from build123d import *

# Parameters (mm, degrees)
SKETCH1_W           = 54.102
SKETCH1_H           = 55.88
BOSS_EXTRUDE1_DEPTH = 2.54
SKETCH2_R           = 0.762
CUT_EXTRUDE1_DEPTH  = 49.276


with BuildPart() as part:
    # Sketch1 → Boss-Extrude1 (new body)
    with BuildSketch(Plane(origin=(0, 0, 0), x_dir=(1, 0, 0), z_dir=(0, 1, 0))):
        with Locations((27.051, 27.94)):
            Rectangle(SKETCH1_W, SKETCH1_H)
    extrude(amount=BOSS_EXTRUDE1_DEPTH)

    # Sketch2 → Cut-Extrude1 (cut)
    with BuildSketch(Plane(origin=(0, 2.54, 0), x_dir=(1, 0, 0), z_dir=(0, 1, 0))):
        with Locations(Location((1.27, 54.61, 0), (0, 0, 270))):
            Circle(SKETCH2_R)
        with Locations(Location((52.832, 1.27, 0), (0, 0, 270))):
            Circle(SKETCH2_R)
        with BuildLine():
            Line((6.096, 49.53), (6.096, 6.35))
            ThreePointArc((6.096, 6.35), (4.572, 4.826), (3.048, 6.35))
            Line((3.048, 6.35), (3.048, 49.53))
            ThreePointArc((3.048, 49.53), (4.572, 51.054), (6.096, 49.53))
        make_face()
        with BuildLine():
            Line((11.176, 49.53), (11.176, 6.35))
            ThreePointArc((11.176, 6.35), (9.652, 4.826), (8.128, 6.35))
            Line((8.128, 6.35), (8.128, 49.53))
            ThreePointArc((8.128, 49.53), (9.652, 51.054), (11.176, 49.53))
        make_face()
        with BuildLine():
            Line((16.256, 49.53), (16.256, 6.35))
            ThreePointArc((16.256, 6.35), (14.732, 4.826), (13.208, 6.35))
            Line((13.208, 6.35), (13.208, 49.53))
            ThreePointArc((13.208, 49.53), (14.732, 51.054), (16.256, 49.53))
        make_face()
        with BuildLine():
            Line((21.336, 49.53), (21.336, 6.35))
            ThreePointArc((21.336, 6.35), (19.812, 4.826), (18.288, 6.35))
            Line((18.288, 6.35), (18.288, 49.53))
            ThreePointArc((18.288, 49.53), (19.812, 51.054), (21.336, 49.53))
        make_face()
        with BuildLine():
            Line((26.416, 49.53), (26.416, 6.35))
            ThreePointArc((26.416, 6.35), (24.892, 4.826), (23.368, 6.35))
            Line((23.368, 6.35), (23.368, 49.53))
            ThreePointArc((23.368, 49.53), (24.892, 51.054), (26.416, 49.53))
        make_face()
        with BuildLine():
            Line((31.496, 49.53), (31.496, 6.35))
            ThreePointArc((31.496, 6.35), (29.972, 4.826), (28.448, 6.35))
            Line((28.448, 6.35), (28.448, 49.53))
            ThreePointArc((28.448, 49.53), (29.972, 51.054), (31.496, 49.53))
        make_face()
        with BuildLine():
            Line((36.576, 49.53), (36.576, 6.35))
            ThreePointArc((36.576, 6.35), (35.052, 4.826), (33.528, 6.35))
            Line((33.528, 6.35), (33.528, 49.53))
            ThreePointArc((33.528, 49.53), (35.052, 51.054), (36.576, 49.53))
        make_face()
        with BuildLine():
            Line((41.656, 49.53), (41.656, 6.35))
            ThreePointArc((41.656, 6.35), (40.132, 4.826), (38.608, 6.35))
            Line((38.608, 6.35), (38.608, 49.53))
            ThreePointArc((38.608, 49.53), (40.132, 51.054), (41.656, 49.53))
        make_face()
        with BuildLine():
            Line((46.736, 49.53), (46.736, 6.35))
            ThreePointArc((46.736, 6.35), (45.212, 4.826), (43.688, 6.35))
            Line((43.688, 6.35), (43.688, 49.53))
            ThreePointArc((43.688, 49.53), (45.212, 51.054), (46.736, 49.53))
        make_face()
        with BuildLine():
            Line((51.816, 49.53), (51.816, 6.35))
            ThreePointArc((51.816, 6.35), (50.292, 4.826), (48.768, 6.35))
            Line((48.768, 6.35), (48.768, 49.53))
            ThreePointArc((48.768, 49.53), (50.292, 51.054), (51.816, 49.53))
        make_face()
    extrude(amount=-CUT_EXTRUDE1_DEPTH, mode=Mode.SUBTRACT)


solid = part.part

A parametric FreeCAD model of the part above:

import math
import FreeCAD as App
import Part
import Sketcher
from FreeCAD import Vector
Q = App.Units.Quantity

doc = App.newDocument("Part")
params = doc.addObject("Spreadsheet::Sheet", "Params")
for row, (alias, value) in enumerate([
    ("sketch1_height", "2.2 in"),
    ("sketch1_width", "2.13 in"),
    ("pad1_length", "0.1 in"),
    ("sketch2_diameter", "0.06 in"),
    ("sketch2_radius", "0.06 in"),
    ("sketch2_height", "1.7 in"),
    ("pocket1_length", "1.94 in"),
], start=1):
    params.set(f"A{row}", alias)
    params.set(f"B{row}", "=" + value)
    params.setAlias(f"B{row}", alias)

body = doc.addObject("PartDesign::Body", "Body")

sketch1 = body.newObject("Sketcher::SketchObject", "Sketch")
sketch1.AttachmentSupport = (doc.getObject("XZ_Plane"), [""])
sketch1.MapMode = "FlatFace"
sketch1.addGeometry([
    Part.LineSegment(Vector(0, -56, 0), Vector(0, 0, 0)),
    Part.LineSegment(Vector(0, 0, 0), Vector(54, 0, 0)),
    Part.LineSegment(Vector(54, 0, 0), Vector(54, -56, 0)),
    Part.LineSegment(Vector(54, -56, 0), Vector(0, -56, 0)),
], False)
sketch1.addConstraint([
    Sketcher.Constraint("Coincident", 0, 2, 1, 1),
    Sketcher.Constraint("Coincident", 1, 2, 2, 1),
    Sketcher.Constraint("Coincident", 2, 2, 3, 1),
    Sketcher.Constraint("Coincident", 3, 2, 0, 1),
    Sketcher.Constraint("Vertical", 0),
    Sketcher.Constraint("Horizontal", 1),
    Sketcher.Constraint("Vertical", 2),
    Sketcher.Constraint("Horizontal", 3),
    Sketcher.Constraint("Coincident", 0, 2, -1, 1),
    Sketcher.Constraint("DistanceY", 0, 1, 0, 2, Q("2.2 in")),
    Sketcher.Constraint("DistanceX", 1, 1, 1, 2, Q("2.13 in")),
])
sketch1.setExpression("Constraints[9]", "Params.sketch1_height")
sketch1.setExpression("Constraints[10]", "Params.sketch1_width")
pad1 = body.newObject("PartDesign::Pad", "Pad")
pad1.Profile = sketch1
pad1.setExpression("Length", "Params.pad1_length")
pad1.Reversed = True

sketch2 = body.newObject("Sketcher::SketchObject", "Sketch001")
sketch2.AttachmentSupport = (doc.getObject("XZ_Plane"), [""])
sketch2.MapMode = "FlatFace"
sketch2.AttachmentOffset = App.Placement(Vector(0, 0, -0.1 * 25.4), App.Rotation())
sketch2.addGeometry([
    Part.Circle(Vector(1.3, -54.6, 0), Vector(0, 0, 1), 0.8),
    Part.Circle(Vector(52.8, -1.3, 0), Vector(0, 0, 1), 0.8),
    Part.LineSegment(Vector(6.1, -6.3, 0), Vector(6.1, -49.5, 0)),
    Part.ArcOfCircle(Part.Circle(Vector(4.6, -49.5, 0), Vector(0, 0, 1), 1.5), math.radians(180), math.radians(360)),
    Part.LineSegment(Vector(3, -49.5, 0), Vector(3, -6.3, 0)),
    Part.ArcOfCircle(Part.Circle(Vector(4.6, -6.3, 0), Vector(0, 0, 1), 1.5), math.radians(0), math.radians(180)),
    Part.LineSegment(Vector(11.2, -6.3, 0), Vector(11.2, -49.5, 0)),
    Part.ArcOfCircle(Part.Circle(Vector(9.7, -49.5, 0), Vector(0, 0, 1), 1.5), math.radians(180), math.radians(360)),
    Part.LineSegment(Vector(8.1, -49.5, 0), Vector(8.1, -6.3, 0)),
    Part.ArcOfCircle(Part.Circle(Vector(9.7, -6.3, 0), Vector(0, 0, 1), 1.5), math.radians(0), math.radians(180)),
    Part.LineSegment(Vector(16.3, -6.3, 0), Vector(16.3, -49.5, 0)),
    Part.ArcOfCircle(Part.Circle(Vector(14.7, -49.5, 0), Vector(0, 0, 1), 1.5), math.radians(180), math.radians(360)),
    Part.LineSegment(Vector(13.2, -49.5, 0), Vector(13.2, -6.3, 0)),
    Part.ArcOfCircle(Part.Circle(Vector(14.7, -6.3, 0), Vector(0, 0, 1), 1.5), math.radians(0), math.radians(180)),
    Part.LineSegment(Vector(21.3, -6.3, 0), Vector(21.3, -49.5, 0)),
    Part.ArcOfCircle(Part.Circle(Vector(19.8, -49.5, 0), Vector(0, 0, 1), 1.5), math.radians(180), math.radians(360)),
    Part.LineSegment(Vector(18.3, -49.5, 0), Vector(18.3, -6.3, 0)),
    Part.ArcOfCircle(Part.Circle(Vector(19.8, -6.3, 0), Vector(0, 0, 1), 1.5), math.radians(0), math.radians(180)),
    Part.LineSegment(Vector(26.4, -6.3, 0), Vector(26.4, -49.5, 0)),
    Part.ArcOfCircle(Part.Circle(Vector(24.9, -49.5, 0), Vector(0, 0, 1), 1.5), math.radians(180), math.radians(360)),
    Part.LineSegment(Vector(23.4, -49.5, 0), Vector(23.4, -6.3, 0)),
    Part.ArcOfCircle(Part.Circle(Vector(24.9, -6.3, 0), Vector(0, 0, 1), 1.5), math.radians(0), math.radians(180)),
    Part.LineSegment(Vector(31.5, -6.3, 0), Vector(31.5, -49.5, 0)),
    Part.ArcOfCircle(Part.Circle(Vector(30, -49.5, 0), Vector(0, 0, 1), 1.5), math.radians(180), math.radians(360)),
    Part.LineSegment(Vector(28.4, -49.5, 0), Vector(28.4, -6.3, 0)),
    Part.ArcOfCircle(Part.Circle(Vector(30, -6.3, 0), Vector(0, 0, 1), 1.5), math.radians(0), math.radians(180)),
    Part.LineSegment(Vector(36.6, -6.3, 0), Vector(36.6, -49.5, 0)),
    Part.ArcOfCircle(Part.Circle(Vector(35.1, -49.5, 0), Vector(0, 0, 1), 1.5), math.radians(180), math.radians(360)),
    Part.LineSegment(Vector(33.5, -49.5, 0), Vector(33.5, -6.3, 0)),
    Part.ArcOfCircle(Part.Circle(Vector(35.1, -6.3, 0), Vector(0, 0, 1), 1.5), math.radians(0), math.radians(180)),
    Part.LineSegment(Vector(41.7, -6.3, 0), Vector(41.7, -49.5, 0)),
    Part.ArcOfCircle(Part.Circle(Vector(40.1, -49.5, 0), Vector(0, 0, 1), 1.5), math.radians(180), math.radians(360)),
    Part.LineSegment(Vector(38.6, -49.5, 0), Vector(38.6, -6.3, 0)),
    Part.ArcOfCircle(Part.Circle(Vector(40.1, -6.3, 0), Vector(0, 0, 1), 1.5), math.radians(0), math.radians(180)),
    Part.LineSegment(Vector(46.7, -6.3, 0), Vector(46.7, -49.5, 0)),
    Part.ArcOfCircle(Part.Circle(Vector(45.2, -49.5, 0), Vector(0, 0, 1), 1.5), math.radians(180), math.radians(360)),
    Part.LineSegment(Vector(43.7, -49.5, 0), Vector(43.7, -6.3, 0)),
    Part.ArcOfCircle(Part.Circle(Vector(45.2, -6.3, 0), Vector(0, 0, 1), 1.5), math.radians(0), math.radians(180)),
    Part.LineSegment(Vector(51.8, -6.3, 0), Vector(51.8, -49.5, 0)),
    Part.ArcOfCircle(Part.Circle(Vector(50.3, -49.5, 0), Vector(0, 0, 1), 1.5), math.radians(180), math.radians(360)),
    Part.LineSegment(Vector(48.8, -49.5, 0), Vector(48.8, -6.3, 0)),
    Part.ArcOfCircle(Part.Circle(Vector(50.3, -6.3, 0), Vector(0, 0, 1), 1.5), math.radians(0), math.radians(180)),
], False)
sketch2.addConstraint([
    Sketcher.Constraint("Tangent", 2, 2, 3, 2),
    Sketcher.Constraint("Tangent", 3, 1, 4, 1),
    Sketcher.Constraint("Tangent", 4, 2, 5, 2),
    Sketcher.Constraint("Tangent", 5, 1, 2, 1),
    Sketcher.Constraint("Tangent", 6, 2, 7, 2),
    Sketcher.Constraint("Tangent", 7, 1, 8, 1),
    Sketcher.Constraint("Tangent", 8, 2, 9, 2),
    Sketcher.Constraint("Tangent", 9, 1, 6, 1),
    Sketcher.Constraint("Tangent", 10, 2, 11, 2),
    Sketcher.Constraint("Tangent", 11, 1, 12, 1),
    Sketcher.Constraint("Tangent", 12, 2, 13, 2),
    Sketcher.Constraint("Tangent", 13, 1, 10, 1),
    Sketcher.Constraint("Tangent", 14, 2, 15, 2),
    Sketcher.Constraint("Tangent", 15, 1, 16, 1),
    Sketcher.Constraint("Tangent", 16, 2, 17, 2),
    Sketcher.Constraint("Tangent", 17, 1, 14, 1),
    Sketcher.Constraint("Tangent", 18, 2, 19, 2),
    Sketcher.Constraint("Tangent", 19, 1, 20, 1),
    Sketcher.Constraint("Tangent", 20, 2, 21, 2),
    Sketcher.Constraint("Tangent", 21, 1, 18, 1),
    Sketcher.Constraint("Tangent", 22, 2, 23, 2),
    Sketcher.Constraint("Tangent", 23, 1, 24, 1),
    Sketcher.Constraint("Tangent", 24, 2, 25, 2),
    Sketcher.Constraint("Tangent", 25, 1, 22, 1),
    Sketcher.Constraint("Tangent", 26, 2, 27, 2),
    Sketcher.Constraint("Tangent", 27, 1, 28, 1),
    Sketcher.Constraint("Tangent", 28, 2, 29, 2),
    Sketcher.Constraint("Tangent", 29, 1, 26, 1),
    Sketcher.Constraint("Tangent", 30, 2, 31, 2),
    Sketcher.Constraint("Tangent", 31, 1, 32, 1),
    Sketcher.Constraint("Tangent", 32, 2, 33, 2),
    Sketcher.Constraint("Tangent", 33, 1, 30, 1),
    Sketcher.Constraint("Tangent", 34, 2, 35, 2),
    Sketcher.Constraint("Tangent", 35, 1, 36, 1),
    Sketcher.Constraint("Tangent", 36, 2, 37, 2),
    Sketcher.Constraint("Tangent", 37, 1, 34, 1),
    Sketcher.Constraint("Tangent", 38, 2, 39, 2),
    Sketcher.Constraint("Tangent", 39, 1, 40, 1),
    Sketcher.Constraint("Tangent", 40, 2, 41, 2),
    Sketcher.Constraint("Tangent", 41, 1, 38, 1),
    Sketcher.Constraint("Vertical", 2),
    Sketcher.Constraint("Vertical", 4),
    Sketcher.Constraint("Vertical", 6),
    Sketcher.Constraint("Vertical", 8),
    Sketcher.Constraint("Vertical", 10),
    Sketcher.Constraint("Vertical", 12),
    Sketcher.Constraint("Vertical", 14),
    Sketcher.Constraint("Vertical", 16),
    Sketcher.Constraint("Vertical", 18),
    Sketcher.Constraint("Vertical", 20),
    Sketcher.Constraint("Vertical", 22),
    Sketcher.Constraint("Vertical", 24),
    Sketcher.Constraint("Vertical", 26),
    Sketcher.Constraint("Vertical", 28),
    Sketcher.Constraint("Vertical", 30),
    Sketcher.Constraint("Vertical", 32),
    Sketcher.Constraint("Vertical", 34),
    Sketcher.Constraint("Vertical", 36),
    Sketcher.Constraint("Vertical", 38),
    Sketcher.Constraint("Vertical", 40),
    Sketcher.Constraint("Equal", 0, 1),
    Sketcher.Constraint("Equal", 5, 7),
    Sketcher.Constraint("Equal", 9, 11),
    Sketcher.Constraint("Equal", 13, 15),
    Sketcher.Constraint("Equal", 17, 19),
    Sketcher.Constraint("Equal", 21, 23),
    Sketcher.Constraint("Equal", 25, 27),
    Sketcher.Constraint("Equal", 29, 31),
    Sketcher.Constraint("Equal", 33, 35),
    Sketcher.Constraint("Equal", 37, 39),
    Sketcher.Constraint("Horizontal", 3, 3, 7, 3),
    Sketcher.Constraint("Horizontal", 5, 3, 9, 3),
    Sketcher.Constraint("Horizontal", 7, 3, 11, 3),
    Sketcher.Constraint("Horizontal", 9, 3, 13, 3),
    Sketcher.Constraint("Horizontal", 11, 3, 15, 3),
    Sketcher.Constraint("Horizontal", 13, 3, 17, 3),
    Sketcher.Constraint("Horizontal", 15, 3, 19, 3),
    Sketcher.Constraint("Horizontal", 17, 3, 21, 3),
    Sketcher.Constraint("Horizontal", 19, 3, 23, 3),
    Sketcher.Constraint("Horizontal", 21, 3, 25, 3),
    Sketcher.Constraint("Horizontal", 23, 3, 27, 3),
    Sketcher.Constraint("Horizontal", 25, 3, 29, 3),
    Sketcher.Constraint("Horizontal", 27, 3, 31, 3),
    Sketcher.Constraint("Horizontal", 29, 3, 33, 3),
    Sketcher.Constraint("Horizontal", 31, 3, 35, 3),
    Sketcher.Constraint("Horizontal", 33, 3, 37, 3),
    Sketcher.Constraint("Horizontal", 35, 3, 39, 3),
    Sketcher.Constraint("Horizontal", 37, 3, 41, 3),
    Sketcher.Constraint("Diameter", 0, Q("0.06 in")),
    Sketcher.Constraint("Radius", 3, Q("0.06 in")),
    Sketcher.Constraint("DistanceY", 2, 2, 2, 1, Q("1.7 in")),
    Sketcher.Constraint("DistanceX", -1, 1, 0, 3, Q("0.05 in")),
    Sketcher.Constraint("DistanceY", 0, 3, -1, 1, Q("2.15 in")),
    Sketcher.Constraint("DistanceX", -1, 1, 1, 3, Q("2.08 in")),
    Sketcher.Constraint("DistanceY", 1, 3, -1, 1, Q("0.05 in")),
    Sketcher.Constraint("DistanceX", -1, 1, 3, 3, Q("0.18 in")),
    Sketcher.Constraint("DistanceY", 3, 3, -1, 1, Q("1.95 in")),
    Sketcher.Constraint("DistanceX", -1, 1, 7, 3, Q("0.38 in")),
    Sketcher.Constraint("DistanceX", -1, 1, 11, 3, Q("0.58 in")),
    Sketcher.Constraint("DistanceX", -1, 1, 15, 3, Q("0.78 in")),
    Sketcher.Constraint("DistanceX", -1, 1, 19, 3, Q("0.98 in")),
    Sketcher.Constraint("DistanceX", -1, 1, 23, 3, Q("1.18 in")),
    Sketcher.Constraint("DistanceX", -1, 1, 27, 3, Q("1.38 in")),
    Sketcher.Constraint("DistanceX", -1, 1, 31, 3, Q("1.58 in")),
    Sketcher.Constraint("DistanceX", -1, 1, 35, 3, Q("1.78 in")),
    Sketcher.Constraint("DistanceX", -1, 1, 39, 3, Q("1.98 in")),
])
sketch2.setExpression("Constraints[88]", "Params.sketch2_diameter")
sketch2.setExpression("Constraints[89]", "Params.sketch2_radius")
sketch2.setExpression("Constraints[90]", "Params.sketch2_height")
pocket1 = body.newObject("PartDesign::Pocket", "Pocket")
pocket1.Profile = sketch2
pocket1.setExpression("Length", "Params.pocket1_length")
pocket1.Reversed = True

doc.recompute()
